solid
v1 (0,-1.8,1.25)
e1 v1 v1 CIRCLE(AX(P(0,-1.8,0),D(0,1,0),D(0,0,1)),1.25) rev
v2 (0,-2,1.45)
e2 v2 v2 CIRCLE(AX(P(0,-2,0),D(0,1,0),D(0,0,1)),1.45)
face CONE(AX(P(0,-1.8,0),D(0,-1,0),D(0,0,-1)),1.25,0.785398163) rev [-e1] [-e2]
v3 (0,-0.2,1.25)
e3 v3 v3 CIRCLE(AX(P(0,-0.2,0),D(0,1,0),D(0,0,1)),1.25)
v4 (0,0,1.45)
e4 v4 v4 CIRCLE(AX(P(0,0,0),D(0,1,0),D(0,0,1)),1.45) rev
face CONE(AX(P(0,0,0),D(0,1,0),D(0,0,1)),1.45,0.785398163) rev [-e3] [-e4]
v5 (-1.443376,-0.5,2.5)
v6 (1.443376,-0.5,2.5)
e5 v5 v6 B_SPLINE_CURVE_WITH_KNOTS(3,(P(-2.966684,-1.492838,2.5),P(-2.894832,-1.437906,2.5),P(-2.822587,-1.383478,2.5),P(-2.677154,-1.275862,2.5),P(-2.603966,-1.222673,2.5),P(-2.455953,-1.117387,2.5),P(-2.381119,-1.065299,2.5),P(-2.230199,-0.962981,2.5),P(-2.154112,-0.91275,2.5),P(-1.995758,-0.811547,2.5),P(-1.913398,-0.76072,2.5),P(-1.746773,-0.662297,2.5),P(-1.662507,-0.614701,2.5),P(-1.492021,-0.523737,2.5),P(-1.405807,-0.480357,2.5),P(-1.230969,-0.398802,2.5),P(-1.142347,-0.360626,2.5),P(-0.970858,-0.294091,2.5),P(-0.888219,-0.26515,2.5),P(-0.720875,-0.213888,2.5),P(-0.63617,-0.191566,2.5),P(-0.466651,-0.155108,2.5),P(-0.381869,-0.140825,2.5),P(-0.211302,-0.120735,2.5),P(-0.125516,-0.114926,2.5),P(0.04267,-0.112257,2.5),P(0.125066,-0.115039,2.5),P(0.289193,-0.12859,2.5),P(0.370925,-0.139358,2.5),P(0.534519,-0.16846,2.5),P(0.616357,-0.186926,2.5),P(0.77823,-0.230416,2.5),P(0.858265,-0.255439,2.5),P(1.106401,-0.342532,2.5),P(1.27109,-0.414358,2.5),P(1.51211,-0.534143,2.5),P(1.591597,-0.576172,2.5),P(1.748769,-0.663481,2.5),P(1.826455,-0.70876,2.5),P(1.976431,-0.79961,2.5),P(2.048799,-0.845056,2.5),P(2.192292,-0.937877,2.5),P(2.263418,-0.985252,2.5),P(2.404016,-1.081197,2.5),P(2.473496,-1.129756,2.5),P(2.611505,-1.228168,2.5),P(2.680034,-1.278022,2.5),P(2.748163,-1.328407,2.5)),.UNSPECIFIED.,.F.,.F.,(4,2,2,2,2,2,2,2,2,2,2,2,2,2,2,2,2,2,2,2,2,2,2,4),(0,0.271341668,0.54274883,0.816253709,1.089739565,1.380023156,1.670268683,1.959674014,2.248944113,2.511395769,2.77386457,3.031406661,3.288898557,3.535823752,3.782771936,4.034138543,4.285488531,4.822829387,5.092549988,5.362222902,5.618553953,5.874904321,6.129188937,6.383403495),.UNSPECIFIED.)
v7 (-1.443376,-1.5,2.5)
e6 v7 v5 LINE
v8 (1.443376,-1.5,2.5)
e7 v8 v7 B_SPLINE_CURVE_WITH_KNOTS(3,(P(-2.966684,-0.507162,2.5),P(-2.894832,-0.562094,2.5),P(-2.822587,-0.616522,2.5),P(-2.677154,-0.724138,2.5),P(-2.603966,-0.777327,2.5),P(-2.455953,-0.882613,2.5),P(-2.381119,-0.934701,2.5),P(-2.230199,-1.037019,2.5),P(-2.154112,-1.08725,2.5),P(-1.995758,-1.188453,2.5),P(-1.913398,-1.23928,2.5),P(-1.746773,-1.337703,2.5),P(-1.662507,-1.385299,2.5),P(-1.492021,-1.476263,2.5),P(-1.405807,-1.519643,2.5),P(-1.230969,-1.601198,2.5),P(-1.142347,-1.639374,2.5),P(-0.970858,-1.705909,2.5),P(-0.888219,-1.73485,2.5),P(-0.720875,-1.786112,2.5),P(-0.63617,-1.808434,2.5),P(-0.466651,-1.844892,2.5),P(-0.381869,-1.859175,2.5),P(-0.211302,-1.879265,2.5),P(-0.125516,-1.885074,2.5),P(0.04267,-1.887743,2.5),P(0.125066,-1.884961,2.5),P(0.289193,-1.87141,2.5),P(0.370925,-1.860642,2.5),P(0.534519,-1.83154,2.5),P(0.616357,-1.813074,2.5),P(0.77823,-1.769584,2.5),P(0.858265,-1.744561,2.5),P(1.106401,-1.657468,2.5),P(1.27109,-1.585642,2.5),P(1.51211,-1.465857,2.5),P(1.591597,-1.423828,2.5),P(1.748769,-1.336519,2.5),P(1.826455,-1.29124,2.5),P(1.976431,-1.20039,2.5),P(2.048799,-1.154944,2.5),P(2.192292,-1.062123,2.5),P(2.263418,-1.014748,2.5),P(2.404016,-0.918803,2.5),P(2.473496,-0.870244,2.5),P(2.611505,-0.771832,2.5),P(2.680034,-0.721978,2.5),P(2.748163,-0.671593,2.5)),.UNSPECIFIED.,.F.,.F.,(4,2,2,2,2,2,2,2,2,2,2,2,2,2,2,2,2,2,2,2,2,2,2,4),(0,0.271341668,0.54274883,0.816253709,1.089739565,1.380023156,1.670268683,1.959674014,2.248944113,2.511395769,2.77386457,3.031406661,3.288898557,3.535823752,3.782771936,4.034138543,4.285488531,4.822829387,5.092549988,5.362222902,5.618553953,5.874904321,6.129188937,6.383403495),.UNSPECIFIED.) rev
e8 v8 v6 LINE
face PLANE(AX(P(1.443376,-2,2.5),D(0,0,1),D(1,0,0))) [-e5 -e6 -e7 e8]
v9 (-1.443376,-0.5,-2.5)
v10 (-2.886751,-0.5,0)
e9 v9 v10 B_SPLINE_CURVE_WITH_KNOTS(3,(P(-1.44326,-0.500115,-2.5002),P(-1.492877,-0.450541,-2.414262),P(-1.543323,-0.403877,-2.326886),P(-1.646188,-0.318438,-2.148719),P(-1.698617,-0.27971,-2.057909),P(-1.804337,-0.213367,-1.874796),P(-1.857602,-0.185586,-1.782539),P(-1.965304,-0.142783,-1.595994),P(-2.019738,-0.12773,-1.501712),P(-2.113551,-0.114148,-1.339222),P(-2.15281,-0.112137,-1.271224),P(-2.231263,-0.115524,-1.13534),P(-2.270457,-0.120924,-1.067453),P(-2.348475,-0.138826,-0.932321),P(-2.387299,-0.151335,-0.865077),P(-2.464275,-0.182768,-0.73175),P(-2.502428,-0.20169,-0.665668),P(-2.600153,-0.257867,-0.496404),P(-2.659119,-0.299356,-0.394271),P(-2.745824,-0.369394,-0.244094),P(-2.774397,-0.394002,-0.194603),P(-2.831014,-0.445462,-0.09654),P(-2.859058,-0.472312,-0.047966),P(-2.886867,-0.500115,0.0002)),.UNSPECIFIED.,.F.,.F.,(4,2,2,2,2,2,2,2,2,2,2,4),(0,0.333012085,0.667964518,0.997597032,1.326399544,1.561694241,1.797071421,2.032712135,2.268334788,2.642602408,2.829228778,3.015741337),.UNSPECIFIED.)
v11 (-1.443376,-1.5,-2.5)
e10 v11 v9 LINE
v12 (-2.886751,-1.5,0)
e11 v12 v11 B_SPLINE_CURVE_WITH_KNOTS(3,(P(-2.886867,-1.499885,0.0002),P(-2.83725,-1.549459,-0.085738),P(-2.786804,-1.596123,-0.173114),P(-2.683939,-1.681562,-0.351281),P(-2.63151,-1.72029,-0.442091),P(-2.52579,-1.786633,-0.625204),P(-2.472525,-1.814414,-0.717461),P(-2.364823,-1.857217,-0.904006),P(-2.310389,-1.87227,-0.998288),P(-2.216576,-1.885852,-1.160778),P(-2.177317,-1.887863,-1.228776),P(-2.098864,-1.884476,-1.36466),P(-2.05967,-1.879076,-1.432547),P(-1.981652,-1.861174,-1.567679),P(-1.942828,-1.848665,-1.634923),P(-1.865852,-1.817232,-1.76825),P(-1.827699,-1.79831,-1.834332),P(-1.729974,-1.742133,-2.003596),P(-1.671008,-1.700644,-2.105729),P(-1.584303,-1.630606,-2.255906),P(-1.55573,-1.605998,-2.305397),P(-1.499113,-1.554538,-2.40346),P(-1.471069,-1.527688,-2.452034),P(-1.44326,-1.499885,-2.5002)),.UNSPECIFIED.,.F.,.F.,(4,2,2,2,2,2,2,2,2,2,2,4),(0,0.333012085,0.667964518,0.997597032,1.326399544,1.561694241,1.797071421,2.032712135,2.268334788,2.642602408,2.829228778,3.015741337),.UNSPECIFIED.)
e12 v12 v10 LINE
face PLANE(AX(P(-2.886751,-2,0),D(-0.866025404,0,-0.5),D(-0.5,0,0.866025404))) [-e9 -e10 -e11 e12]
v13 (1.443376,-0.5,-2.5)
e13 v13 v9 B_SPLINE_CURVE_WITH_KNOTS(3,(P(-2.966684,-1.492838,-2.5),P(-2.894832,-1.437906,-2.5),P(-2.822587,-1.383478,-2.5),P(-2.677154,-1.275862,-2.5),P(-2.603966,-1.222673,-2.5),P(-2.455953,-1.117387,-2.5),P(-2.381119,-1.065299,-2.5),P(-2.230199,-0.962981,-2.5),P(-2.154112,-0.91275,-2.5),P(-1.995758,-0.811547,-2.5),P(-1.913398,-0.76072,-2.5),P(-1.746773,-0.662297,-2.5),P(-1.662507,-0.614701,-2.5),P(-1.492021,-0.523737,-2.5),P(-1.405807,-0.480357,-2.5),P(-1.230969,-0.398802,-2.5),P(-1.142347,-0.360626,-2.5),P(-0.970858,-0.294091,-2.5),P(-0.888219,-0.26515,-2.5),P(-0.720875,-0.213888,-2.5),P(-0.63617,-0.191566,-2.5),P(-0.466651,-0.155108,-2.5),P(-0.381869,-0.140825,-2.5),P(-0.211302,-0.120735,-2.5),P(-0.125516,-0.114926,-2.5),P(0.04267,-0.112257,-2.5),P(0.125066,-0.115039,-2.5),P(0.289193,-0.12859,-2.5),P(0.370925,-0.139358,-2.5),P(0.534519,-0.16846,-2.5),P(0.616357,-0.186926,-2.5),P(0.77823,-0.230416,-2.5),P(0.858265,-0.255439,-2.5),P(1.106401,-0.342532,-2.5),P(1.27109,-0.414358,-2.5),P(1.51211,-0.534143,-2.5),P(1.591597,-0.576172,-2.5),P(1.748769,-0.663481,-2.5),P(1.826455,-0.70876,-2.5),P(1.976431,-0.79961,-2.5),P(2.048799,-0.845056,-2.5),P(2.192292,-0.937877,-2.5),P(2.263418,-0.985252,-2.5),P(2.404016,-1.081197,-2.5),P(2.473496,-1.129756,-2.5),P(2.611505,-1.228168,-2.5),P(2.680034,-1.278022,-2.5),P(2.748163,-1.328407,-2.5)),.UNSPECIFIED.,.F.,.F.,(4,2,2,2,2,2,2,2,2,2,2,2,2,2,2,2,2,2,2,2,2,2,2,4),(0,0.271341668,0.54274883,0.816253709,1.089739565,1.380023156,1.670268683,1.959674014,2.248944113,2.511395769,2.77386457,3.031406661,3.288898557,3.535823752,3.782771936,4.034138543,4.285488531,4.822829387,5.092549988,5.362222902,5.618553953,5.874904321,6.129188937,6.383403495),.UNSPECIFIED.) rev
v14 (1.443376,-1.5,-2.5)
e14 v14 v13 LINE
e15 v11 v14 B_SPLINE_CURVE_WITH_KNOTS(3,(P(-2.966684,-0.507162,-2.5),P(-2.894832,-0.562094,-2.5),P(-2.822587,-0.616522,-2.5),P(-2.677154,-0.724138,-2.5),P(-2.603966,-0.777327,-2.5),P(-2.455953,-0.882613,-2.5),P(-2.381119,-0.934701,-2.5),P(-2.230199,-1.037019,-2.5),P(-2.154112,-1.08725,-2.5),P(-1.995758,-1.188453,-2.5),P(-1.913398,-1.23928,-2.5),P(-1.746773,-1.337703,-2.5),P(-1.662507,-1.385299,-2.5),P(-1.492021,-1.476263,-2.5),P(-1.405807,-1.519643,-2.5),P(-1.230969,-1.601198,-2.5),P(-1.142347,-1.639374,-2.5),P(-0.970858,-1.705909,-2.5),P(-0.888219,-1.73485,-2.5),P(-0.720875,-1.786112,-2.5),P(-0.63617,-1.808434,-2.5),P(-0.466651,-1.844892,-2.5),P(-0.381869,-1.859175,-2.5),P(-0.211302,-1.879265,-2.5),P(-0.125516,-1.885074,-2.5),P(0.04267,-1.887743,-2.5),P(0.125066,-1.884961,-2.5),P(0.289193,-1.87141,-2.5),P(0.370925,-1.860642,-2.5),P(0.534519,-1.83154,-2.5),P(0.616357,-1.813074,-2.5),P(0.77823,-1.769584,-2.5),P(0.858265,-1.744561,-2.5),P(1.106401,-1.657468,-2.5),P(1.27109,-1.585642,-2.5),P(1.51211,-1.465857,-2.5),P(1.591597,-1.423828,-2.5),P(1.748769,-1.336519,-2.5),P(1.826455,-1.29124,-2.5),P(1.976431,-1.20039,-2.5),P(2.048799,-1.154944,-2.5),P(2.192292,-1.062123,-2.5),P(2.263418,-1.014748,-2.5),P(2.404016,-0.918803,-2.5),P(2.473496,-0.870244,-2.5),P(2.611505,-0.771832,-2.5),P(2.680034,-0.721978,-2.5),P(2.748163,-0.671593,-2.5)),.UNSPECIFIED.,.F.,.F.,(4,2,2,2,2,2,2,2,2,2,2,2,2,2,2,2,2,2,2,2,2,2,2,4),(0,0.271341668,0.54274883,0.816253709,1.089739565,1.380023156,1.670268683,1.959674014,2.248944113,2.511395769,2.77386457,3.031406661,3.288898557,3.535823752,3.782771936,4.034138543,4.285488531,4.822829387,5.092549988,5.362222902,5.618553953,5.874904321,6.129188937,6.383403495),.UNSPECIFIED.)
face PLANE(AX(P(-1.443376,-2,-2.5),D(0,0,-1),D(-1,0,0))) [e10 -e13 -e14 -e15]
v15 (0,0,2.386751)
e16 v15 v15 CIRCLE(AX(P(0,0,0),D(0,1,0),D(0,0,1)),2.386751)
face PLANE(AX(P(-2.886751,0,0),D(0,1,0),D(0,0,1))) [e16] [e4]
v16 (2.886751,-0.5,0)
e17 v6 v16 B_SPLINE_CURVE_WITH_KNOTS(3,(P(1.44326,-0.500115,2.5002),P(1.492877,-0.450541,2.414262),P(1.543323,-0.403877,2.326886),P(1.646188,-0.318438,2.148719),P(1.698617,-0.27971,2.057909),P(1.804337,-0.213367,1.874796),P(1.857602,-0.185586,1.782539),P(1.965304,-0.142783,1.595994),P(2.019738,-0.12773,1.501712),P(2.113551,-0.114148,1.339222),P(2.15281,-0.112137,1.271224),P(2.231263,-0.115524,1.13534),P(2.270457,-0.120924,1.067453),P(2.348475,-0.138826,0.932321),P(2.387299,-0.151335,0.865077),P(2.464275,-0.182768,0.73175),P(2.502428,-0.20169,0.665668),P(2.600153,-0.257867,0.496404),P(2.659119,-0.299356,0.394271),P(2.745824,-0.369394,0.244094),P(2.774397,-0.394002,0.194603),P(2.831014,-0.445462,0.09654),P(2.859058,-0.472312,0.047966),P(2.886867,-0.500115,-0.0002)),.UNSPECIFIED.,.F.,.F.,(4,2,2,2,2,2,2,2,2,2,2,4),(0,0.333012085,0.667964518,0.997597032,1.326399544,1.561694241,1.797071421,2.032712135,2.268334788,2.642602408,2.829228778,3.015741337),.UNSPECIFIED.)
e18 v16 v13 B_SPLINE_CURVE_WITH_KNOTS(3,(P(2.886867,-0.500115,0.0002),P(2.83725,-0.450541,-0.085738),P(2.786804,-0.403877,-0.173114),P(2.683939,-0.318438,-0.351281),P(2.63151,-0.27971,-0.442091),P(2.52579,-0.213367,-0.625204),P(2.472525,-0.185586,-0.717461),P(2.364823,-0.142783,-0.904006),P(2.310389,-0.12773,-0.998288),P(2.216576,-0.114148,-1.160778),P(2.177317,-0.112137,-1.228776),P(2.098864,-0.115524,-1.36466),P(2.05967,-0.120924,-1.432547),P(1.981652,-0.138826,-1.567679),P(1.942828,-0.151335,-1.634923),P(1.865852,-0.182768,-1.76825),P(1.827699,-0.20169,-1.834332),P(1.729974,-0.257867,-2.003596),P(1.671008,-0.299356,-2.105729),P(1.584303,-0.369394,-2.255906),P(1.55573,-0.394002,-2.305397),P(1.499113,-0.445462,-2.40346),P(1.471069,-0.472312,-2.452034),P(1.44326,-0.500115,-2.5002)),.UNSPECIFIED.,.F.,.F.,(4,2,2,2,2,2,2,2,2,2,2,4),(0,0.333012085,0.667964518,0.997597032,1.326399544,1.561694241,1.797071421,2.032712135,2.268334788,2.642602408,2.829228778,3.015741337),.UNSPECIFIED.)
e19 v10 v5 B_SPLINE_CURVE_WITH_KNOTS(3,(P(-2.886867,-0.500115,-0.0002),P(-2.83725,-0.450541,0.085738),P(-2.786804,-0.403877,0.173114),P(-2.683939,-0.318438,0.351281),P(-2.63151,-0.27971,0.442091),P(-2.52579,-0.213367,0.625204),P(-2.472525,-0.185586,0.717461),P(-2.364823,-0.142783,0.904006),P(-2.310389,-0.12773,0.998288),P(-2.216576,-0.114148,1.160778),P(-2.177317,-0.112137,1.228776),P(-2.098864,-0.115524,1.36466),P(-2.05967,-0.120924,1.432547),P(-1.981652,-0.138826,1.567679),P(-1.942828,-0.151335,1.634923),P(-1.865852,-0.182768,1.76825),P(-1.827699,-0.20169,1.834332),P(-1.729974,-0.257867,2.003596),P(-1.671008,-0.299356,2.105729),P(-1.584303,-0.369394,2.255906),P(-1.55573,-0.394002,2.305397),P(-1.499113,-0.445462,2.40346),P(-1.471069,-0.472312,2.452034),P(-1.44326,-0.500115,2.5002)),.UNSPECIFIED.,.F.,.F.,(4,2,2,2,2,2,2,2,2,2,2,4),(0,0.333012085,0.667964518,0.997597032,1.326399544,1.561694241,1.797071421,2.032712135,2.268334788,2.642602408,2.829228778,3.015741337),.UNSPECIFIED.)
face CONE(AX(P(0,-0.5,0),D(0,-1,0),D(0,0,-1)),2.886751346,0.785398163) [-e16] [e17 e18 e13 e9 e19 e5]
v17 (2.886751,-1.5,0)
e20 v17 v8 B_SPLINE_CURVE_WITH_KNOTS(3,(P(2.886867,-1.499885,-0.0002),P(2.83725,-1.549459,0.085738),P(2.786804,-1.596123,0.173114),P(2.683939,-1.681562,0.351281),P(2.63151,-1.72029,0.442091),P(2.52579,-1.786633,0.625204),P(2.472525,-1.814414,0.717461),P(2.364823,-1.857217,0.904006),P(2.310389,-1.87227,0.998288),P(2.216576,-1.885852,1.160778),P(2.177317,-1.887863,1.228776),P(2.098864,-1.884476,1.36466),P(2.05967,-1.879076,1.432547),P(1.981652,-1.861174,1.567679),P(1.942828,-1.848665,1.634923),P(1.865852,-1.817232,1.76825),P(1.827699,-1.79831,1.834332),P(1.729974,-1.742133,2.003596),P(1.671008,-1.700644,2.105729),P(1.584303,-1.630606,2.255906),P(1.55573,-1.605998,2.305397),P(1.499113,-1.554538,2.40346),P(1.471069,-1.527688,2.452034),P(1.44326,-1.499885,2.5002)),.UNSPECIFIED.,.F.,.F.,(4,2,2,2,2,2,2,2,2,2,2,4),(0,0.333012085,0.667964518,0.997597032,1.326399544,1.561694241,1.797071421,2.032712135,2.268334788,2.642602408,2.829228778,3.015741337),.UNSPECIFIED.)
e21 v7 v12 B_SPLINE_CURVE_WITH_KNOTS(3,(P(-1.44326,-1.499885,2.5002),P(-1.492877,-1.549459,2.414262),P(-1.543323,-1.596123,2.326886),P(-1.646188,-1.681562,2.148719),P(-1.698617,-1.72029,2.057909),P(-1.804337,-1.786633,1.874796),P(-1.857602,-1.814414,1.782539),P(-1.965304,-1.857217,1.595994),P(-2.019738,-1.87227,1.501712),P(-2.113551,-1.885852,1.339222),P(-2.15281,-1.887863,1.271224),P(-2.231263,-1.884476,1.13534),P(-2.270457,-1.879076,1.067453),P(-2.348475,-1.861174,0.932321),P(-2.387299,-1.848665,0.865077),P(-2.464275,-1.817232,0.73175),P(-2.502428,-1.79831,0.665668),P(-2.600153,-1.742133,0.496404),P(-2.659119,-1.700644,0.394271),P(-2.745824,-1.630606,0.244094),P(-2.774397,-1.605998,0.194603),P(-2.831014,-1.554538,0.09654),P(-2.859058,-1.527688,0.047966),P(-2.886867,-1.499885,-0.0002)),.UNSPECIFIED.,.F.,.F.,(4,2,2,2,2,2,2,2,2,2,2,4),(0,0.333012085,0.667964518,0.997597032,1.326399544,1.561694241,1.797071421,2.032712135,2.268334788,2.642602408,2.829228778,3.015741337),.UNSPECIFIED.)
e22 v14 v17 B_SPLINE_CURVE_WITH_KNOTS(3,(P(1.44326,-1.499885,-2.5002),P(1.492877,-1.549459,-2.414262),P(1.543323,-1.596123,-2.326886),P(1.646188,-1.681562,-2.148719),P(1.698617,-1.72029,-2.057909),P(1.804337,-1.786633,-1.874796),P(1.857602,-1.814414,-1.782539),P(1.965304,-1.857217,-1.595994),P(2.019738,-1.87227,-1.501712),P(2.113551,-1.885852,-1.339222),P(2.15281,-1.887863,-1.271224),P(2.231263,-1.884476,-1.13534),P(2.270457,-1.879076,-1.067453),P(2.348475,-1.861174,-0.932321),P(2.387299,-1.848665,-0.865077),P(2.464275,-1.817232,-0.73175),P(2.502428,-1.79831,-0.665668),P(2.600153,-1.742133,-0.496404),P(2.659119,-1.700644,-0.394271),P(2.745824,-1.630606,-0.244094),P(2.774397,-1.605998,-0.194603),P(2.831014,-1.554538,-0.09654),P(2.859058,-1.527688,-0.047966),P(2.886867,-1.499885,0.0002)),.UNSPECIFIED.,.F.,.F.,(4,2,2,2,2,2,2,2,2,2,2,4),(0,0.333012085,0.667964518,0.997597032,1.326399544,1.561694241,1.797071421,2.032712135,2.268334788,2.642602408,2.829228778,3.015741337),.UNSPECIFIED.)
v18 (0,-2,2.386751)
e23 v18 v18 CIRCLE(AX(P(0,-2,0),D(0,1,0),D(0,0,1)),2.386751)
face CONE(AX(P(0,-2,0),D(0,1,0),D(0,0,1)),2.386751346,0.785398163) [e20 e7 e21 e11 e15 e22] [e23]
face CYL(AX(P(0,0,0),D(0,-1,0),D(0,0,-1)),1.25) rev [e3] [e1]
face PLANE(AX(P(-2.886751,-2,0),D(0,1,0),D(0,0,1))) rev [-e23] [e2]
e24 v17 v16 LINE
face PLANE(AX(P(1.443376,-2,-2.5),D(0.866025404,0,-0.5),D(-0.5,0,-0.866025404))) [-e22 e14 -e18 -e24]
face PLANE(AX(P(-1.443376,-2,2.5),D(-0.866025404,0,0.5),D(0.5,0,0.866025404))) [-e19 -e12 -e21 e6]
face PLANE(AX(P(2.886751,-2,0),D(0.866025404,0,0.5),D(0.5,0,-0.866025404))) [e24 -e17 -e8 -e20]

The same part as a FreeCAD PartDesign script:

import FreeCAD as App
import Part
import Sketcher

V = App.Vector
Q = App.Units.Quantity


def edges_at(feature, points):
    """Names of the edges that pass closest to the given points."""
    edges = feature.Shape.Edges
    near = lambda p: min(range(len(edges)), key=lambda i: edges[i].distToShape(Part.Vertex(*p))[0])
    return sorted({f"Edge{near(p) + 1}" for p in points})


def add_polygon(sketch, points):
    """Adds a closed chain of lines whose ends are joined by coincident constraints."""
    first, n = sketch.GeometryCount, len(points)
    for a, b in zip(points, points[1:] + points[:1]):
        sketch.addGeometry(Part.LineSegment(App.Vector(*a, 0), App.Vector(*b, 0)), False)
    for i in range(n):
        sketch.addConstraint(Sketcher.Constraint("Coincident", first + i, 2, first + (i + 1) % n, 1))

doc = App.newDocument("Part")
body = doc.addObject("PartDesign::Body", "Body")

# Sketch on XZ plane
sketch1 = body.newObject("Sketcher::SketchObject", "Sketch")
sketch1.AttachmentSupport = (doc.getObject("XZ_Plane"), [""])
sketch1.MapMode = "FlatFace"
add_polygon(sketch1, [(1.4, -2.5), (-1.4, -2.5), (-2.9, 0), (-1.4, 2.5), (1.4, 2.5), (2.9, 0)])  # lines 0-5
sketch1.addConstraint(Sketcher.Constraint("Horizontal", 0))
sketch1.addConstraint(Sketcher.Constraint("Horizontal", 3))
sketch1.addConstraint(Sketcher.Constraint("Symmetric", 0, 2, 3, 2, -1, 1))
sketch1.addConstraint(Sketcher.Constraint("Symmetric", 1, 2, 4, 2, -1, 1))
sketch1.addConstraint(Sketcher.Constraint("PointOnObject", 1, 2, -1))
sketch1.addConstraint(Sketcher.Constraint("Parallel", 2, 5))
sketch1.addConstraint(Sketcher.Constraint("Vertical", 0, 2, 2, 2))
sketch1.addConstraint(Sketcher.Constraint("Angle", 1, Q("120 deg")))
sketch1.addConstraint(Sketcher.Constraint("DistanceY", 0, 2, 2, 2, Q("5 mm")))
sketch1.addConstraint(Sketcher.Constraint("DistanceX", 0, 2, 0, 1, Q("2.886751 mm")))
pad1 = body.newObject("PartDesign::Pad", "Pad")
pad1.Profile = sketch1
pad1.Length = 2

# Sketch on XZ plane
sketch2 = body.newObject("Sketcher::SketchObject", "Sketch001")
sketch2.AttachmentSupport = (doc.getObject("XZ_Plane"), [""])
sketch2.MapMode = "FlatFace"
sketch2.AttachmentOffset = App.Placement(V(0, 0, 2), App.Rotation())
sketch2.addGeometry(Part.Circle(V(0, 0, 0), V(0, 0, 1), 1.2), False)
sketch2.addConstraint(Sketcher.Constraint("Coincident", 0, 3, -1, 1))
sketch2.addConstraint(Sketcher.Constraint("Diameter", 0, Q("2.5 mm")))
pocket1 = body.newObject("PartDesign::Pocket", "Pocket")
pocket1.Profile = sketch2
pocket1.Type = "ThroughAll"

# Sketch on XY plane
sketch3 = body.newObject("Sketcher::SketchObject", "Sketch002")
sketch3.AttachmentSupport = (doc.getObject("XY_Plane"), [""])
sketch3.MapMode = "FlatFace"
add_polygon(sketch3, [(-2.9, -0.5), (-2.4, 0), (-2.9, 0)])  # lines 0-2
add_polygon(sketch3, [(-2.4, -2), (-2.9, -1.5), (-2.9, -2)])  # lines 3-5
sketch3.addConstraint(Sketcher.Constraint("Horizontal", 1))
sketch3.addConstraint(Sketcher.Constraint("Vertical", 2))
sketch3.addConstraint(Sketcher.Constraint("Vertical", 4))
sketch3.addConstraint(Sketcher.Constraint("Horizontal", 5))
sketch3.addConstraint(Sketcher.Constraint("PointOnObject", 0, 2, -1))
sketch3.addConstraint(Sketcher.Constraint("Perpendicular", 0, 3))
sketch3.addConstraint(Sketcher.Constraint("Vertical", 2, 2, 3, 2))
sketch3.addConstraint(Sketcher.Constraint("Vertical", 0, 2, 5, 2))
sketch3.addConstraint(Sketcher.Constraint("Equal", 5, 2))
sketch3.addConstraint(Sketcher.Constraint("DistanceX", 1, 2, 1, 1, Q("0.5 mm")))
sketch3.addConstraint(Sketcher.Constraint("DistanceY", 4, 2, -1, 1, Q("2 mm")))
sketch3.addConstraint(Sketcher.Constraint("DistanceX", 0, 2, -1, 1, Q("2.386751 mm")))
groove = body.newObject("PartDesign::Groove", "Groove")
groove.Profile = sketch3
groove.ReferenceAxis = (sketch3, ["V_Axis"])
groove.Angle = 360
doc.recompute()

chamfer = body.newObject("PartDesign::Chamfer", "Chamfer")
chamfer.Base = (groove, edges_at(groove, [(0, 0, 1.25), (0, -2, 1.25)]))
chamfer.Size = 0.2

doc.recompute()
